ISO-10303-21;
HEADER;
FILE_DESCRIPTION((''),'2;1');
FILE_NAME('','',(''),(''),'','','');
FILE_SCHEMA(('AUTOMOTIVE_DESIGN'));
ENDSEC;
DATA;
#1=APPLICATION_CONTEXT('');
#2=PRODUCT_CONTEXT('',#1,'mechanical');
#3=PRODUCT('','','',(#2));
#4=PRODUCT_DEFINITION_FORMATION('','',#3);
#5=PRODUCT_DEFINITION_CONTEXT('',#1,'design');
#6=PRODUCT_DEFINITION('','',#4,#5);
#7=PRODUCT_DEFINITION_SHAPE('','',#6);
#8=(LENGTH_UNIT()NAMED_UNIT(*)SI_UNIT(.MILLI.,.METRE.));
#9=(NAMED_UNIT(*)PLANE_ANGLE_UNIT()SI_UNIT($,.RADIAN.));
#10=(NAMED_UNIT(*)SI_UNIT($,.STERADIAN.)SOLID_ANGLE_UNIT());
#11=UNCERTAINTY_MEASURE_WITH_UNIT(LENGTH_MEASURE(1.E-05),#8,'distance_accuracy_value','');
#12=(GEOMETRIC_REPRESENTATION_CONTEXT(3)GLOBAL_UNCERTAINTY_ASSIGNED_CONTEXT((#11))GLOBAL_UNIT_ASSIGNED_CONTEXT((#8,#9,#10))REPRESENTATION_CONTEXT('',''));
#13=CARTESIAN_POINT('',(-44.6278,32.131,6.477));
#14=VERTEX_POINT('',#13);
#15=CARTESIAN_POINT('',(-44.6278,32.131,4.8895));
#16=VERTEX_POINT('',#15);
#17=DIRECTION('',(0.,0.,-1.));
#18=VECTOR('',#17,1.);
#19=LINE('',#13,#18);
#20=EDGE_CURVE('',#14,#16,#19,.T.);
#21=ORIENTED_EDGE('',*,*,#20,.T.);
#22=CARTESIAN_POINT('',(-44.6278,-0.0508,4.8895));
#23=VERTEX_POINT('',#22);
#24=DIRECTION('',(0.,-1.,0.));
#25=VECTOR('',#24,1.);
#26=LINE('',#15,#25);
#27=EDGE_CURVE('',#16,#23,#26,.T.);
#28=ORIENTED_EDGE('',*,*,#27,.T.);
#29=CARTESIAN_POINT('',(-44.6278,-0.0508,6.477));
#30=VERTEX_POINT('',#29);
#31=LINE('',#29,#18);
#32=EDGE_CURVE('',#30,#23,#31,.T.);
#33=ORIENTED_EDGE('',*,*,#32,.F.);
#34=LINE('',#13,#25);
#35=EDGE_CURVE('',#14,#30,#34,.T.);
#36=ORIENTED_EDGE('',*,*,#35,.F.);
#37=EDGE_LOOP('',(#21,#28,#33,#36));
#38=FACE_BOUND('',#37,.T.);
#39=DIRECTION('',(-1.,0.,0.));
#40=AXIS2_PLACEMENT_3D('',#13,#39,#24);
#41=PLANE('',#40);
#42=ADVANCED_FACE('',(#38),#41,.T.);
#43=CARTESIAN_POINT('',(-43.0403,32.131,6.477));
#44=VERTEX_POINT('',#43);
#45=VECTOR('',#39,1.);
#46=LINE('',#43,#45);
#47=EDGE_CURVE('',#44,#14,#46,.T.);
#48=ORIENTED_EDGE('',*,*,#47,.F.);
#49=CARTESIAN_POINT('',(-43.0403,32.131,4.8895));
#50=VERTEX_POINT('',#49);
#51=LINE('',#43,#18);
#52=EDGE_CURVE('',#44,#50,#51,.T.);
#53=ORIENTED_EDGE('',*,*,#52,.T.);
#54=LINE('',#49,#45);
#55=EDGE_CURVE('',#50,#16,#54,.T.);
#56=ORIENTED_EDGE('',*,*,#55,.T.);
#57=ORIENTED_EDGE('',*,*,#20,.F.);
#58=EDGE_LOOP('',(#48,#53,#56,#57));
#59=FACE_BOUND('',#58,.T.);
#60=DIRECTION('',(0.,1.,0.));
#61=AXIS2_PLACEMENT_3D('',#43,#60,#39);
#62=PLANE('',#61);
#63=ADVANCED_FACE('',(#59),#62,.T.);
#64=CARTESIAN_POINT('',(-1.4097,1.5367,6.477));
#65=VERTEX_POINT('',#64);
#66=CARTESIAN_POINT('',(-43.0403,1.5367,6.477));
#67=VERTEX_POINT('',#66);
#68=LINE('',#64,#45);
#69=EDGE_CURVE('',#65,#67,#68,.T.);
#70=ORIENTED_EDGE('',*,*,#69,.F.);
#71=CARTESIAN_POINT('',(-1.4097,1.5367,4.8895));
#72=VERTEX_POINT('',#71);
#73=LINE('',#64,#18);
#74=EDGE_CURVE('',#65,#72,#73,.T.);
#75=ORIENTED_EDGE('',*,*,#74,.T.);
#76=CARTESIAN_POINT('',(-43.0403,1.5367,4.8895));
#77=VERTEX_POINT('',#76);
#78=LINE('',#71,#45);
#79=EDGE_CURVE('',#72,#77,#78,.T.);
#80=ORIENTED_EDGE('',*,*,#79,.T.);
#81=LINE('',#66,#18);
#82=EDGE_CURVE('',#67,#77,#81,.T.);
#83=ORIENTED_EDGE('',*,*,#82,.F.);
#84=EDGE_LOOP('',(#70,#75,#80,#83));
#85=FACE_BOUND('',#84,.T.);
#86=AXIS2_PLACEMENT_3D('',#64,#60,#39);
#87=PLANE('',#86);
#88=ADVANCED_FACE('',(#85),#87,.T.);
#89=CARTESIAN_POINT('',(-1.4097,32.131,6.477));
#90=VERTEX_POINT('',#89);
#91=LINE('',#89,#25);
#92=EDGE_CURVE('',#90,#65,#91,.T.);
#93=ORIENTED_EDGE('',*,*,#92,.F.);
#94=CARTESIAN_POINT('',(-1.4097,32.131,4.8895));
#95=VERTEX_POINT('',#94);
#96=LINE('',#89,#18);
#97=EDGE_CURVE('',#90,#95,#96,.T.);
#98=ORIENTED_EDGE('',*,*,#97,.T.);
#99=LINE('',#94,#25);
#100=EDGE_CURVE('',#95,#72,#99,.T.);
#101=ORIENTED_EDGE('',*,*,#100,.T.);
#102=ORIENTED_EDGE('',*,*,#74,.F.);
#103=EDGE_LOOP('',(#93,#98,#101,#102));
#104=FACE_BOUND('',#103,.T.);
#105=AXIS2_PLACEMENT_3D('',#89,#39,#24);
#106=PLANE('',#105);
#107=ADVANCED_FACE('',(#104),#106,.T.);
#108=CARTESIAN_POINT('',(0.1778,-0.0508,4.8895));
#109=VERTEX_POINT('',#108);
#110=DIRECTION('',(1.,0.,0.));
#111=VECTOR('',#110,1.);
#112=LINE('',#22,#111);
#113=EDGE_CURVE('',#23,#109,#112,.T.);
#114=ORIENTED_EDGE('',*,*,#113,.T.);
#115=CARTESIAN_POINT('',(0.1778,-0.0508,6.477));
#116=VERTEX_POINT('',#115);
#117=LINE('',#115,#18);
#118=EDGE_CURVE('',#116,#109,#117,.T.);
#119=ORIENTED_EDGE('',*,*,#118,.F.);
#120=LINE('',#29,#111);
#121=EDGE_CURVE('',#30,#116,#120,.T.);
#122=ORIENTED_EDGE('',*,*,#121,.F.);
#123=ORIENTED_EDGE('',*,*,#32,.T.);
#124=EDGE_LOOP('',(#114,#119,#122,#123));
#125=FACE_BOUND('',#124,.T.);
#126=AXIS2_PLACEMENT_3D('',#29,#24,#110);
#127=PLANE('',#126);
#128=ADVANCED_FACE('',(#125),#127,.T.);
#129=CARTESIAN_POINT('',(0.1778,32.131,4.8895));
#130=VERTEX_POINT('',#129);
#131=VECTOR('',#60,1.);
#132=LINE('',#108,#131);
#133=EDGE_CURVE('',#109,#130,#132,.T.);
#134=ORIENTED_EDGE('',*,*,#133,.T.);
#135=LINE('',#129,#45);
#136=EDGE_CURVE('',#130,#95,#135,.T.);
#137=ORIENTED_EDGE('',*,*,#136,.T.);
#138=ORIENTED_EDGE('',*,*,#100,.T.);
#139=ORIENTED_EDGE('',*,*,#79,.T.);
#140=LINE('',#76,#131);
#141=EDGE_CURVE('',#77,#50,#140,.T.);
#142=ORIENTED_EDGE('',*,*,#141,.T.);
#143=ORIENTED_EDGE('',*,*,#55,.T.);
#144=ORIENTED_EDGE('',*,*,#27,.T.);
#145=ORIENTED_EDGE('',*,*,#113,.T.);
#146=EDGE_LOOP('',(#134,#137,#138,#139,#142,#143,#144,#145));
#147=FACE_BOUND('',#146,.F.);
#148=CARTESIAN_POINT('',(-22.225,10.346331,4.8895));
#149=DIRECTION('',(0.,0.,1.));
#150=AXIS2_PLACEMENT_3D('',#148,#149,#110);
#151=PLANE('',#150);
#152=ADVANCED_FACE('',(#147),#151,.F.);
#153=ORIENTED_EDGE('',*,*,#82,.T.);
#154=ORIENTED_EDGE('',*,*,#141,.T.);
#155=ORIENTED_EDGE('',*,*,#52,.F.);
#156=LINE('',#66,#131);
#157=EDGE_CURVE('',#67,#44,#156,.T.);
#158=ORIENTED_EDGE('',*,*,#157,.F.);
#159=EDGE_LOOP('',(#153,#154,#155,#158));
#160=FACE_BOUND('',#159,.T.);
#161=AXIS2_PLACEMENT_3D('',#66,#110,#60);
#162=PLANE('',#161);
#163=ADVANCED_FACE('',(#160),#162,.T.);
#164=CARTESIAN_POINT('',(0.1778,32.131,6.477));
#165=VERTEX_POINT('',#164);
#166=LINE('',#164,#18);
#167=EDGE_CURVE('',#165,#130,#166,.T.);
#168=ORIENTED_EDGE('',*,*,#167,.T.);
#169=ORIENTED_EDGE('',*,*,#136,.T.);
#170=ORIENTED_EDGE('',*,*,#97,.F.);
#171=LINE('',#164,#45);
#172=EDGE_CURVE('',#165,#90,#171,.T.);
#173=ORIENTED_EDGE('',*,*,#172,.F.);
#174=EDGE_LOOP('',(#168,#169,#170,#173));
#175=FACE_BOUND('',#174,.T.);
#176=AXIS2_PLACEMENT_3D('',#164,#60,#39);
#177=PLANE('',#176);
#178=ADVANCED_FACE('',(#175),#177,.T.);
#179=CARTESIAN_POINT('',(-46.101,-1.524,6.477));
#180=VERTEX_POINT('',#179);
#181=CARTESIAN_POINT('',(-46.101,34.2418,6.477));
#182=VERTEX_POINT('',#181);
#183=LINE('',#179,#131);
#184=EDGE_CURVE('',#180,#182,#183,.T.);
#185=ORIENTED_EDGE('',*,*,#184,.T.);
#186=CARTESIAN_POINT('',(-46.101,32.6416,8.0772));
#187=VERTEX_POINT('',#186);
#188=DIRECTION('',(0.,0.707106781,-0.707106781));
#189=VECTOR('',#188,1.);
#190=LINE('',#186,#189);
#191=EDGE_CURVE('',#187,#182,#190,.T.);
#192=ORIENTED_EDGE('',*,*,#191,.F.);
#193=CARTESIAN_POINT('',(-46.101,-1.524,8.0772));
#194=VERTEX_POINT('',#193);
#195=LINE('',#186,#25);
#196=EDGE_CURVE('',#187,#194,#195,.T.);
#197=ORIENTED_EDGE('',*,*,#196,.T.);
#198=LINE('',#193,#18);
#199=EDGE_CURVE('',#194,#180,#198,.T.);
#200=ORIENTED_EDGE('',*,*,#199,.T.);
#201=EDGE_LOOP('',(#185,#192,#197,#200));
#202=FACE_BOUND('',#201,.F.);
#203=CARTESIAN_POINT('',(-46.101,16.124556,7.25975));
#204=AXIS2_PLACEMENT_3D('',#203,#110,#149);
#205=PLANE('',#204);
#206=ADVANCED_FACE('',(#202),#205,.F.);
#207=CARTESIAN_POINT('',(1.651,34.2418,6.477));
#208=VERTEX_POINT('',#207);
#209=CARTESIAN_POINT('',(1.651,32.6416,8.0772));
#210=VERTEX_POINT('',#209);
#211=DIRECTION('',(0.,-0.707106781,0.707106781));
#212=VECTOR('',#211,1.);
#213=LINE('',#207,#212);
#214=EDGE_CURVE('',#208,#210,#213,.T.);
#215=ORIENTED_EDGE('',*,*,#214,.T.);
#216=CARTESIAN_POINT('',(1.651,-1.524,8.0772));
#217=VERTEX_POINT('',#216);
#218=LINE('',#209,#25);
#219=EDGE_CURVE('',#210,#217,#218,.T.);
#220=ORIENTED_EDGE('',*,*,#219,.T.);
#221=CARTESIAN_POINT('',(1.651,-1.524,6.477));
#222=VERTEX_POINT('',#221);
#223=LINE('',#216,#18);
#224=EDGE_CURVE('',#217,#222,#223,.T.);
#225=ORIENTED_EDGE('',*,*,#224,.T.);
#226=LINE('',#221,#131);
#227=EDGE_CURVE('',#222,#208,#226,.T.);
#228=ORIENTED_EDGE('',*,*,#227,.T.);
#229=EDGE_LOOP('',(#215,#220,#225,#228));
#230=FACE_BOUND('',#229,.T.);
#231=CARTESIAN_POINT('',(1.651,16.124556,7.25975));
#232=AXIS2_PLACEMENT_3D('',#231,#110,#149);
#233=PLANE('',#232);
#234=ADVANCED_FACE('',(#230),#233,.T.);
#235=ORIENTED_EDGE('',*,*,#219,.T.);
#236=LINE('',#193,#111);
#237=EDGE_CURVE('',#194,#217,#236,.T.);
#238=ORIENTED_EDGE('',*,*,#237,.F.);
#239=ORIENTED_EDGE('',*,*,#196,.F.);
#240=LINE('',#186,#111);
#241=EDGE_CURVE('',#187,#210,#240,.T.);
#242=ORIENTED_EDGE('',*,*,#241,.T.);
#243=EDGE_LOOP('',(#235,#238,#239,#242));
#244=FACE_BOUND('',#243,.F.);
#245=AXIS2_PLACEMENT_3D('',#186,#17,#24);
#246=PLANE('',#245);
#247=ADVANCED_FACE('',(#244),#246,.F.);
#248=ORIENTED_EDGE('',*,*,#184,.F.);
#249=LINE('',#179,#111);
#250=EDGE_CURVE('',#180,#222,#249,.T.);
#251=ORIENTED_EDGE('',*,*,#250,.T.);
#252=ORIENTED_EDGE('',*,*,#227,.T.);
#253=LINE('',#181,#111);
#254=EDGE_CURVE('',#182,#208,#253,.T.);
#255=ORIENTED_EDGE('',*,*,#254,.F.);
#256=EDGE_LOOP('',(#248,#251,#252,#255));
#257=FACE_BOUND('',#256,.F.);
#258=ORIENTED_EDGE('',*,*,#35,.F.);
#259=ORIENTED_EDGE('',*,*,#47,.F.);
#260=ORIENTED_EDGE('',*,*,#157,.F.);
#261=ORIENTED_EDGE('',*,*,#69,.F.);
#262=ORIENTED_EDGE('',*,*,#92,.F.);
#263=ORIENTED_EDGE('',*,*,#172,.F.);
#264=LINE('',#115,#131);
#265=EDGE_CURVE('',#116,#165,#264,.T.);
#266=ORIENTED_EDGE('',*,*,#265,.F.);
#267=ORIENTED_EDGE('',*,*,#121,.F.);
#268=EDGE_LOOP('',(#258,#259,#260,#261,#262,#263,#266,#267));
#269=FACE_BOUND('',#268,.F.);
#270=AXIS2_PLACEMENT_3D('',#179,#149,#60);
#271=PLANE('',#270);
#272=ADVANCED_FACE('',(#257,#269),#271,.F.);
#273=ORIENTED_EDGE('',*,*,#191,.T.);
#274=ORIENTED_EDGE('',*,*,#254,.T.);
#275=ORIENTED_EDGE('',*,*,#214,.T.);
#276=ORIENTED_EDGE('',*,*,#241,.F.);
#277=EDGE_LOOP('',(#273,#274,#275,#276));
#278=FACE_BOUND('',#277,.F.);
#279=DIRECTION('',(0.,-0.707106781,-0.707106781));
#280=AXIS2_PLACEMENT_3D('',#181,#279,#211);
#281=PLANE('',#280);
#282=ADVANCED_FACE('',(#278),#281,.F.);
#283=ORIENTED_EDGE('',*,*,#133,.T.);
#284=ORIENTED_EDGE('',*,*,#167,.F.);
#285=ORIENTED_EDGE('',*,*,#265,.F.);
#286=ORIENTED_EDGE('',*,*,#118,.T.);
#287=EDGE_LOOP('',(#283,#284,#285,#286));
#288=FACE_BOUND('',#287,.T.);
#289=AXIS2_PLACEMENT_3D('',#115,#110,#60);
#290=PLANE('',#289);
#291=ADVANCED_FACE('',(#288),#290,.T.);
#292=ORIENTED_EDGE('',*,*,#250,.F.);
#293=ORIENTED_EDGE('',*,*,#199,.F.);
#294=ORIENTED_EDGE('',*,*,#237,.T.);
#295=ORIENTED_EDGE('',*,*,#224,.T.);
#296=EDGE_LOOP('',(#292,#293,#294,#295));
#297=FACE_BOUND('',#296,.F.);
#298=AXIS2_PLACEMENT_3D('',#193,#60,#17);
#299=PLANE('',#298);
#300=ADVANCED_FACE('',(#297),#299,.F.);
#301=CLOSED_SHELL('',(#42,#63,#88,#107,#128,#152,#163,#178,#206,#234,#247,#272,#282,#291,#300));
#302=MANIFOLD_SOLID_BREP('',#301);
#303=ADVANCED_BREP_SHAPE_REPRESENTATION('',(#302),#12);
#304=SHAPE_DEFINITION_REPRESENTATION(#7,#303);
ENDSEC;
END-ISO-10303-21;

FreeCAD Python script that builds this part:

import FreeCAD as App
import Part
import Sketcher
Q = App.Units.Quantity


def add_polygon(sketch, points):
    """Adds a closed chain of lines whose ends are joined by coincident constraints."""
    first, n = sketch.GeometryCount, len(points)
    for a, b in zip(points, points[1:] + points[:1]):
        sketch.addGeometry(Part.LineSegment(App.Vector(*a, 0), App.Vector(*b, 0)), False)
    for i in range(n):
        sketch.addConstraint(Sketcher.Constraint("Coincident", first + i, 2, first + (i + 1) % n, 1))

doc = App.newDocument("Part")
body = doc.addObject("PartDesign::Body", "Body")

sketch1 = doc.addObject("Sketcher::SketchObject", "Sketch")
body.addObject(sketch1)
sketch1.AttachmentSupport = (doc.YZ_Plane, [""])
sketch1.MapMode = "FlatFace"
sketch1.AttachmentOffset = App.Placement(App.Vector(0, 0, -1.815 * 25.4), App.Rotation())
add_polygon(sketch1, [(34.2418, 6.477), (-1.524, 6.477), (-1.524, 8.0772), (32.6416, 8.0772)])
sketch1.addConstraint([
    Sketcher.Constraint("Horizontal", 0),
    Sketcher.Constraint("Vertical", 1),
    Sketcher.Constraint("Horizontal", 2),
    Sketcher.Constraint("Angle", 3, Q("-45 deg")),
    Sketcher.Constraint("DistanceY", 1, 1, 1, 2, Q("0.063 in")),
    Sketcher.Constraint("DistanceX", 0, 2, -1, 1, Q("0.06 in")),
    Sketcher.Constraint("DistanceX", 0, 2, 0, 1, Q("1.4081 in")),
    Sketcher.Constraint("DistanceY", -1, 1, 0, 2, Q("0.255 in")),
])
pad1 = doc.addObject("PartDesign::Pad", "Pad")
body.addObject(pad1)
pad1.Profile = sketch1
pad1.Length = Q("1.88 in")

sketch2 = doc.addObject("Sketcher::SketchObject", "Sketch001")
body.addObject(sketch2)
sketch2.AttachmentSupport = (doc.XY_Plane, [""])
sketch2.MapMode = "FlatFace"
sketch2.AttachmentOffset = App.Placement(App.Vector(0, 0, 0.255 * 25.4), App.Rotation())
add_polygon(sketch2, [(-43.0403, 32.131), (-43.0403, 1.5367), (-1.4097, 1.5367), (-1.4097, 32.131), (0.1778, 32.131), (0.1778, -0.0508), (-44.6278, -0.0508), (-44.6278, 32.131)])
sketch2.addConstraint([
    Sketcher.Constraint("Vertical", 0),
    Sketcher.Constraint("Horizontal", 1),
    Sketcher.Constraint("Vertical", 2),
    Sketcher.Constraint("Horizontal", 3),
    Sketcher.Constraint("Vertical", 4),
    Sketcher.Constraint("Horizontal", 5),
    Sketcher.Constraint("Vertical", 6),
    Sketcher.Constraint("Horizontal", 7),
    Sketcher.Constraint("Horizontal", 3, 2, 6, 2),
    Sketcher.Constraint("Equal", 3, 7),
    Sketcher.Constraint("DistanceX", 1, 1, 1, 2, Q("1.639 in")),
    Sketcher.Constraint("DistanceX", 3, 1, 3, 2, Q("0.0625 in")),
    Sketcher.Constraint("DistanceY", 4, 2, 4, 1, Q("1.267 in")),
    Sketcher.Constraint("DistanceY", 0, 2, 0, 1, Q("1.2045 in")),
    Sketcher.Constraint("DistanceY", -1, 1, 2, 2, Q("1.265 in")),
    Sketcher.Constraint("DistanceX", -1, 1, 3, 2, Q("0.007 in")),
])
pad2 = doc.addObject("PartDesign::Pad", "Pad001")
body.addObject(pad2)
pad2.Profile = sketch2
pad2.Length = Q("0.0625 in")
pad2.Reversed = True

doc.recompute()
